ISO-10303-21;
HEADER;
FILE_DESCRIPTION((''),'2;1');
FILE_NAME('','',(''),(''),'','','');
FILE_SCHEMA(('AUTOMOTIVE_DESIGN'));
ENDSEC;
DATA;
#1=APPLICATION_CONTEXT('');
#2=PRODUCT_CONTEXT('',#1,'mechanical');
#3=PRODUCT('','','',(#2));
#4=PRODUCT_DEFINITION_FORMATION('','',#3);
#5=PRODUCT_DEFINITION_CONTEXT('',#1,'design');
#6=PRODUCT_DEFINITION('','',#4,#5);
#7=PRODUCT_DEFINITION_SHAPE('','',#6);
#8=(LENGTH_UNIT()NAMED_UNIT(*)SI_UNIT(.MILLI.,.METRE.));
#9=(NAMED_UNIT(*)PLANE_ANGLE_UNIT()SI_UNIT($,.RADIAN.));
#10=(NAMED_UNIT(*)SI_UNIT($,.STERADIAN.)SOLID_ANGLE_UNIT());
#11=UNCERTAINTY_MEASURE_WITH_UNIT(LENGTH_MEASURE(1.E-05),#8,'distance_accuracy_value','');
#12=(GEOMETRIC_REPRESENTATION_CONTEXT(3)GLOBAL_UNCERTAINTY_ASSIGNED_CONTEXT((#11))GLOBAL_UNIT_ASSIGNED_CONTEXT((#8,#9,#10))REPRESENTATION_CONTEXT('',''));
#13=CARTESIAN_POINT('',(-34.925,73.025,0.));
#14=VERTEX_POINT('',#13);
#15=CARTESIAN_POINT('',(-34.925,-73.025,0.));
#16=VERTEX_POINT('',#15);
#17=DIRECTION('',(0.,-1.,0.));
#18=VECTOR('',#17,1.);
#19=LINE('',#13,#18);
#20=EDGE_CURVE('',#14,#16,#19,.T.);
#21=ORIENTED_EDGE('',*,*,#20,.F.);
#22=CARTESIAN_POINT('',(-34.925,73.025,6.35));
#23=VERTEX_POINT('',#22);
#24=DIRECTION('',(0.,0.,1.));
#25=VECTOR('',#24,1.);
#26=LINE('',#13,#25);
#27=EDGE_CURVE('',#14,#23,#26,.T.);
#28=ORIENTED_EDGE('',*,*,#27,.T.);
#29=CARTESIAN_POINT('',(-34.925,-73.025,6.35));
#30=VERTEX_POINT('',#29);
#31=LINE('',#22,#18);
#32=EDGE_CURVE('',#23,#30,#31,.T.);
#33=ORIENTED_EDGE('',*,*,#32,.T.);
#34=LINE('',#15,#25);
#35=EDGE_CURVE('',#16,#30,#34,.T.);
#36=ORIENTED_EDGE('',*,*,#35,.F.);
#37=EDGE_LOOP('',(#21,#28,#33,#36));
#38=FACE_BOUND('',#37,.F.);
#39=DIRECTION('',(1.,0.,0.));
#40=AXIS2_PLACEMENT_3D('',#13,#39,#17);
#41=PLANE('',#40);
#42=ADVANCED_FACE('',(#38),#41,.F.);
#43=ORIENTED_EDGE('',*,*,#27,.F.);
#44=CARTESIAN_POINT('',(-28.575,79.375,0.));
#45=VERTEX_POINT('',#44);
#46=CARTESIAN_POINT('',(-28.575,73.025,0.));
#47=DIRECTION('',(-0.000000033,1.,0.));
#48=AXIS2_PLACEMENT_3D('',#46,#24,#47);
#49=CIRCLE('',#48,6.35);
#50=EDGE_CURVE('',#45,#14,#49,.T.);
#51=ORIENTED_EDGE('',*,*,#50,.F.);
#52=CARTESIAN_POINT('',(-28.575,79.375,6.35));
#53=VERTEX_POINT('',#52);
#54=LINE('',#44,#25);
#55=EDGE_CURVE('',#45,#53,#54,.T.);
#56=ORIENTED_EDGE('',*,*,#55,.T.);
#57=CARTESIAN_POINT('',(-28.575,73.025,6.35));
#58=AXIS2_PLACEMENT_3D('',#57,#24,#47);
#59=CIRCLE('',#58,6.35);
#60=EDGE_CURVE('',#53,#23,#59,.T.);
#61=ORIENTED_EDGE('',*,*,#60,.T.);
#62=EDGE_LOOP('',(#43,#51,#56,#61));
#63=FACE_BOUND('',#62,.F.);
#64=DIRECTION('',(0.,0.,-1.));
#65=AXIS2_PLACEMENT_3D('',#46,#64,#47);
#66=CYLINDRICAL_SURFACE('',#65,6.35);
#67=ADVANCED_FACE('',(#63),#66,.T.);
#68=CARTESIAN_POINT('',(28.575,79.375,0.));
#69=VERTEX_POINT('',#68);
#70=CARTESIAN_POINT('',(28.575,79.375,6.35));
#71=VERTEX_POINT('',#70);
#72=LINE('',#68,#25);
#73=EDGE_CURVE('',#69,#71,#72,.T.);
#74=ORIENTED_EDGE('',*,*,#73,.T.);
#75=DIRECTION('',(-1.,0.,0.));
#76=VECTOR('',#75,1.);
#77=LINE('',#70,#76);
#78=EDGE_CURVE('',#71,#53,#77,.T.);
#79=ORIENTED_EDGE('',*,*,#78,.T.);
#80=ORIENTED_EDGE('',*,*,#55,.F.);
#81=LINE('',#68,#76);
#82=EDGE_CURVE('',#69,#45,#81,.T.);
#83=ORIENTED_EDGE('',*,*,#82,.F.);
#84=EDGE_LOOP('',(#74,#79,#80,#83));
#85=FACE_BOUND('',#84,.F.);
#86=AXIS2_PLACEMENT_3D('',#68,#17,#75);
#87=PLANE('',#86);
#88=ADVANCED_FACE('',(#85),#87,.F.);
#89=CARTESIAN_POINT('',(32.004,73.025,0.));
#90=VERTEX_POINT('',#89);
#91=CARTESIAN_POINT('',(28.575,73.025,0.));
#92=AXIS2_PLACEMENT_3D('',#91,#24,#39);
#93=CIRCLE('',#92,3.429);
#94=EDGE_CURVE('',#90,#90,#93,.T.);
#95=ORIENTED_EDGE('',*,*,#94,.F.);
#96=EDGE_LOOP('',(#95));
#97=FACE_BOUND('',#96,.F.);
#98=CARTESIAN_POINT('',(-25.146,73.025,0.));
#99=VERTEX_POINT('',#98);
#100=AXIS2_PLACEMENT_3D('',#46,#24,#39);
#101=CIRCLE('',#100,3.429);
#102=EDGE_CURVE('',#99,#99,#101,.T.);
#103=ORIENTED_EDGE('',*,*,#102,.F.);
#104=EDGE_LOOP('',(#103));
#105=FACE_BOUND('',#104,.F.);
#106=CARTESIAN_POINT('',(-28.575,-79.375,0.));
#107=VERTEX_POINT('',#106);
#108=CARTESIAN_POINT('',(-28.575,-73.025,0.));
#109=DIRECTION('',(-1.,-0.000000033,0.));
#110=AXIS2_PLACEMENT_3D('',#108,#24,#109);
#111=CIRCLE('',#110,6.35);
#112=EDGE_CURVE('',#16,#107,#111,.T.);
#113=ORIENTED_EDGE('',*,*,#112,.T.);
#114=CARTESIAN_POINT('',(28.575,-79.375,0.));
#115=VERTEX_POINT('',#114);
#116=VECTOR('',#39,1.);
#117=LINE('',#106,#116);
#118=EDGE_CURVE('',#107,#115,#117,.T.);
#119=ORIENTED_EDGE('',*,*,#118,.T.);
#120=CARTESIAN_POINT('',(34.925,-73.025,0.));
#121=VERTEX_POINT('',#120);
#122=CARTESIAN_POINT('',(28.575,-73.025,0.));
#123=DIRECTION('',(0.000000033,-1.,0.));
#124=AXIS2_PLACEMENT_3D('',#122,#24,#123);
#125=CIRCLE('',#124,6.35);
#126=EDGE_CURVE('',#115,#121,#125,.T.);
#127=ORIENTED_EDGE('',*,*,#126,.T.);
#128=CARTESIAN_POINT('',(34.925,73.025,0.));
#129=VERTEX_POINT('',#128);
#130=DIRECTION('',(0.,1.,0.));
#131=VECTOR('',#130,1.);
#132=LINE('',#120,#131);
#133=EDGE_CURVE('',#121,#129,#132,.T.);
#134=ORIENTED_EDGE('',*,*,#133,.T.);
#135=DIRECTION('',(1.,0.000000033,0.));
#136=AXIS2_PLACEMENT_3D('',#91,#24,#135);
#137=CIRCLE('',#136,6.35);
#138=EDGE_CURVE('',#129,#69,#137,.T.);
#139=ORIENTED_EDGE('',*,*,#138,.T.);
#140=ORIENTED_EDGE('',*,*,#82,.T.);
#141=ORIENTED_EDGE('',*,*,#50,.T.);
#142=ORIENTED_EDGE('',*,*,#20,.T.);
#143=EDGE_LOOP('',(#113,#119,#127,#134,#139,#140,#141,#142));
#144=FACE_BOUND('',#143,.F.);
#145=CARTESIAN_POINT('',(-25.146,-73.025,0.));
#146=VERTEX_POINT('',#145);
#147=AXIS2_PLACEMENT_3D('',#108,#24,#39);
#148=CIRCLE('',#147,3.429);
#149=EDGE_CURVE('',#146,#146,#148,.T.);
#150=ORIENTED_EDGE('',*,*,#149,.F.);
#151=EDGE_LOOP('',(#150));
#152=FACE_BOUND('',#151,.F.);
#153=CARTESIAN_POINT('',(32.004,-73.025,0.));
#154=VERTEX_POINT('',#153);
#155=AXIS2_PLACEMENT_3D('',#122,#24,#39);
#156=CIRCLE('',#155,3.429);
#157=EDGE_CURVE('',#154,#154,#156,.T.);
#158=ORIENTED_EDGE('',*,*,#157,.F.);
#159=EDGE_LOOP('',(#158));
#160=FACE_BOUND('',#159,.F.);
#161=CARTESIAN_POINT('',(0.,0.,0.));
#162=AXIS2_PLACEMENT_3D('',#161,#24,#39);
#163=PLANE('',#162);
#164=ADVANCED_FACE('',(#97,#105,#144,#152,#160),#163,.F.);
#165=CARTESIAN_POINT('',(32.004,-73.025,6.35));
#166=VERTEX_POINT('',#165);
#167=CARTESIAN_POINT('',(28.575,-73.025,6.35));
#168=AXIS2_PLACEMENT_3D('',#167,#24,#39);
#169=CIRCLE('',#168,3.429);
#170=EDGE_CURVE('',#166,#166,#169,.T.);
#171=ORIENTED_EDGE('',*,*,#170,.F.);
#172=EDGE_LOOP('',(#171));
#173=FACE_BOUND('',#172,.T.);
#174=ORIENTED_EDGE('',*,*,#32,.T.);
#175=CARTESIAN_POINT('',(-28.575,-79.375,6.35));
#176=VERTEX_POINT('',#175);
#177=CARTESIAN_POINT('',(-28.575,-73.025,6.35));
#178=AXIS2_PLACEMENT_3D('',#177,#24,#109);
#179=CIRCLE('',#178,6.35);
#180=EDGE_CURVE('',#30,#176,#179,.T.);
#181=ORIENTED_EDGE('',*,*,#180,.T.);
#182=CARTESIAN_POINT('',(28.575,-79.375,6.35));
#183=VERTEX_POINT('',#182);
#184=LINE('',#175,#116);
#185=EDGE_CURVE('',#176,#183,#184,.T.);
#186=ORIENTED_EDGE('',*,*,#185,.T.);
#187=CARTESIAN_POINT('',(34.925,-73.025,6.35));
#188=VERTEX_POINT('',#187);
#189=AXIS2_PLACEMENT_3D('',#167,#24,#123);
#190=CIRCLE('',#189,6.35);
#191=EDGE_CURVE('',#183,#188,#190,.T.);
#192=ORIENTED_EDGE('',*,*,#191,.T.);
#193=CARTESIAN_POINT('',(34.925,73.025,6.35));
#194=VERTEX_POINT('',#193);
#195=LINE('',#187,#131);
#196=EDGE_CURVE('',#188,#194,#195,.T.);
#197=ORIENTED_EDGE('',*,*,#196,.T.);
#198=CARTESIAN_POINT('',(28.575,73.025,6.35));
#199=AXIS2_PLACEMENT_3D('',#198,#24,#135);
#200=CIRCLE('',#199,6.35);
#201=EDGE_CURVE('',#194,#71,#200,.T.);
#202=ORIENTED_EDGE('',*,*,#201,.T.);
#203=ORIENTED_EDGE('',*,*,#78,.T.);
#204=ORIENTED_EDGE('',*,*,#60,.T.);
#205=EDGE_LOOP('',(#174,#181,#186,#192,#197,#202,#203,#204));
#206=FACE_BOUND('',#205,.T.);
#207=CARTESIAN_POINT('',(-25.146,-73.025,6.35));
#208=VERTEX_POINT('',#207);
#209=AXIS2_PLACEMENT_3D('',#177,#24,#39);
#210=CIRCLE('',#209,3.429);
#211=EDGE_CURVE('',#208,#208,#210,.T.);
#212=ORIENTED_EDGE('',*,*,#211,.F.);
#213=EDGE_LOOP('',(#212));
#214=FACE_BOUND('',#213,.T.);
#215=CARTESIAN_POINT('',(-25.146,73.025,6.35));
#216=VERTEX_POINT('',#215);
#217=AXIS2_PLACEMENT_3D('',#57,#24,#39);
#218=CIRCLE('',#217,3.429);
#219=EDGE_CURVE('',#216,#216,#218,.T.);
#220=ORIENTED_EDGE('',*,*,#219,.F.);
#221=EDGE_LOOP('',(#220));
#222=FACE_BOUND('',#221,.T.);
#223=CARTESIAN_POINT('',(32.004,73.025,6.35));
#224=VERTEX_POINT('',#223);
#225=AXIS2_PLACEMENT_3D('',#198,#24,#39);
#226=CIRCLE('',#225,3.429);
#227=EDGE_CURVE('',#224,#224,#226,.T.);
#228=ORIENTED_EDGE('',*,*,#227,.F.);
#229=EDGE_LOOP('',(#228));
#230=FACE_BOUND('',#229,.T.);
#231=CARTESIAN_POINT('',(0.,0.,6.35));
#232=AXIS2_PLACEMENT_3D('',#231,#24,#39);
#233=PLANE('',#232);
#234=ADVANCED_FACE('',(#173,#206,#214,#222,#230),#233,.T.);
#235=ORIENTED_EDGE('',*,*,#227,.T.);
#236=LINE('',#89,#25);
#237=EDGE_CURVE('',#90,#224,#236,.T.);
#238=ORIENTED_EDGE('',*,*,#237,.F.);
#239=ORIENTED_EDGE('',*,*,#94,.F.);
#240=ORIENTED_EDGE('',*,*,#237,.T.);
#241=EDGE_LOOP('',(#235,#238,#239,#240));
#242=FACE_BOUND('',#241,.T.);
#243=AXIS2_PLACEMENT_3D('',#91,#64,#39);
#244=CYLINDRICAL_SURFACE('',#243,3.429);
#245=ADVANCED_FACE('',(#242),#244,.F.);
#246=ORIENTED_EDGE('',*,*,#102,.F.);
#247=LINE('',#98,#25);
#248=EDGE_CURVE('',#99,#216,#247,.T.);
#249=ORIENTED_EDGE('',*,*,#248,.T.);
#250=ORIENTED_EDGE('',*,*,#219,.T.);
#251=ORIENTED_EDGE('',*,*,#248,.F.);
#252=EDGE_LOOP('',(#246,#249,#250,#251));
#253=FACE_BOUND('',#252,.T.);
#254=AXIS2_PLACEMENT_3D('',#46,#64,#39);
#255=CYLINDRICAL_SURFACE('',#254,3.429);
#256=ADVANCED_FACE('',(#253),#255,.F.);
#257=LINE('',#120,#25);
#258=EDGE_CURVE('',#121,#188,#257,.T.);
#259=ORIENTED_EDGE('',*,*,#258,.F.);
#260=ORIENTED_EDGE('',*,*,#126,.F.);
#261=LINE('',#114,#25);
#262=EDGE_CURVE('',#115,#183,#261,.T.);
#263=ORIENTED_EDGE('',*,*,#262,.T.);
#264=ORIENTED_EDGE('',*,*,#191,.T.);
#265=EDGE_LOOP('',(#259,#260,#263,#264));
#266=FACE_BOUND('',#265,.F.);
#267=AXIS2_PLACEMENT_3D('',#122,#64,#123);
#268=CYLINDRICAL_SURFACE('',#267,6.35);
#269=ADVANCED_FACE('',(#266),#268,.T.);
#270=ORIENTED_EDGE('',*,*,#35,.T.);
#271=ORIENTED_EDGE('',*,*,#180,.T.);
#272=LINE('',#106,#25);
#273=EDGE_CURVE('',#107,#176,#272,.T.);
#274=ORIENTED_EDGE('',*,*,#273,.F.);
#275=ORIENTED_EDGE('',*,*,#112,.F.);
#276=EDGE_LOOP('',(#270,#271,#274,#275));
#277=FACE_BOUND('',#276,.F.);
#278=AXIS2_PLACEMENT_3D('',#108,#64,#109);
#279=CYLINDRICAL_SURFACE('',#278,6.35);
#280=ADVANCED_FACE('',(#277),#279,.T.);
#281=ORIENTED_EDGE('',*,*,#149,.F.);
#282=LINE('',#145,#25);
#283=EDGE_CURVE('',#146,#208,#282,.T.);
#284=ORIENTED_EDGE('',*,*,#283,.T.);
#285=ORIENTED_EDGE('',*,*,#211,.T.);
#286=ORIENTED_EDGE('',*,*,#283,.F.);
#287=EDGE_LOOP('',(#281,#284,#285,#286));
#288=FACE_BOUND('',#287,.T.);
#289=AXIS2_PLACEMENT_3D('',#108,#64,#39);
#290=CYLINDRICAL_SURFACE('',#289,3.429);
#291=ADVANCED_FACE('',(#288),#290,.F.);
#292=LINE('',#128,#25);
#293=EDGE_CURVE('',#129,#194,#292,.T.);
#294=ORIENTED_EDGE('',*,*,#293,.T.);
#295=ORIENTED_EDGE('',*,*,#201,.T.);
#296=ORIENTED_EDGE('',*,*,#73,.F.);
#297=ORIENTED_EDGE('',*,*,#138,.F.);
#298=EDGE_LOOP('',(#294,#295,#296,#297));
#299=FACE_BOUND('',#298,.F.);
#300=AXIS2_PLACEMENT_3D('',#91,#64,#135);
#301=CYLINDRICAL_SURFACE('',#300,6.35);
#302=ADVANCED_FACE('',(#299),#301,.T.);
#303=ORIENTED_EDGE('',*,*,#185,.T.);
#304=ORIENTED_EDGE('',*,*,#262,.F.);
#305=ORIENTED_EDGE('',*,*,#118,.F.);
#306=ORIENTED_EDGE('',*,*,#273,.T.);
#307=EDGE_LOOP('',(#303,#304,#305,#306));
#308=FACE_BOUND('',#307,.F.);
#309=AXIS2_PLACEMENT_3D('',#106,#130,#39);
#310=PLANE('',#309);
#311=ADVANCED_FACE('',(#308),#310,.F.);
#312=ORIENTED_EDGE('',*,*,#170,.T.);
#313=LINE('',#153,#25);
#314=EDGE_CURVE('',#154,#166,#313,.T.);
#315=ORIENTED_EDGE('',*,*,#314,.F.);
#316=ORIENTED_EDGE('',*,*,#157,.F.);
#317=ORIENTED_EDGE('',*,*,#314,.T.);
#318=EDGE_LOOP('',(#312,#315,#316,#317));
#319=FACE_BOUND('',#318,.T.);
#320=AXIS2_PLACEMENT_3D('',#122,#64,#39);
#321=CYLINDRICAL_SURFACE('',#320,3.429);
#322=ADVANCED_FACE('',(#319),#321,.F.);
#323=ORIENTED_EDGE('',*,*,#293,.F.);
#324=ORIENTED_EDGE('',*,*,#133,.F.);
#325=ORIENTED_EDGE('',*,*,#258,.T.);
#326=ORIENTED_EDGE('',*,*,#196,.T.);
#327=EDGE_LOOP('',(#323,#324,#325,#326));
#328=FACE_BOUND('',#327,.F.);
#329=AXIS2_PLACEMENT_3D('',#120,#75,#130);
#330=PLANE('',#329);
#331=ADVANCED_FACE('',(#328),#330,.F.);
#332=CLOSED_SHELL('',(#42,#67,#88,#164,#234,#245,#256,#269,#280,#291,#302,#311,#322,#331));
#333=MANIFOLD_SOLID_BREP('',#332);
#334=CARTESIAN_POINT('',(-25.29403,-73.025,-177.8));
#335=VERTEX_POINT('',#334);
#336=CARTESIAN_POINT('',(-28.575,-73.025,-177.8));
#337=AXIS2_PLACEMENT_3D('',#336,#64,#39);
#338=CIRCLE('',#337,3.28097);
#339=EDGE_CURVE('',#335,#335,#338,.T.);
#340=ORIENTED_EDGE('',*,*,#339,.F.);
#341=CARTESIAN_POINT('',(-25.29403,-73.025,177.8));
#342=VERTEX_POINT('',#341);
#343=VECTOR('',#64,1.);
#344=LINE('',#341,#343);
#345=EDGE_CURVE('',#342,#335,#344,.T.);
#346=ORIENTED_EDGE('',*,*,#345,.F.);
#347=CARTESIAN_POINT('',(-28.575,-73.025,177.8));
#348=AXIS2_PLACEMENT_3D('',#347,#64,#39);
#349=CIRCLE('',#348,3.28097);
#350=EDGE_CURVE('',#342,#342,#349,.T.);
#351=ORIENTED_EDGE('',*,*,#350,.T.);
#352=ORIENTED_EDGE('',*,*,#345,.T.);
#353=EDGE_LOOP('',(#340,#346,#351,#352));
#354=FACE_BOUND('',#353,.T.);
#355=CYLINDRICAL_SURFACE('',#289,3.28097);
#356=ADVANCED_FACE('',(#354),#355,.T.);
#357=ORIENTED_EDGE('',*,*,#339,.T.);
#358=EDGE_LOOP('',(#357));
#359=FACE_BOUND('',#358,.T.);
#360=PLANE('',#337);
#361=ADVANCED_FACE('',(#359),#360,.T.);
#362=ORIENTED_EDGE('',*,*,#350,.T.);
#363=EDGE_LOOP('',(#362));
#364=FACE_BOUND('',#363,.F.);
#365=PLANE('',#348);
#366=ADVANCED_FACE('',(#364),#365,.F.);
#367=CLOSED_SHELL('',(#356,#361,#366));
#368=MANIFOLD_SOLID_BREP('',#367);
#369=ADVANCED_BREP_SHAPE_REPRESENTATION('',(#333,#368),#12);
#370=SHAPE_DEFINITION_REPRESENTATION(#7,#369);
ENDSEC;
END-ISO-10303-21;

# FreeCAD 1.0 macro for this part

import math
import FreeCAD as App
import Part
import Sketcher

V = App.Vector
Q = App.Units.Quantity

doc = App.newDocument("Part")
body = doc.addObject("PartDesign::Body", "Body")

# Sketch on XY plane
sketch1 = doc.addObject("Sketcher::SketchObject", "Sketch")
body.addObject(sketch1)
sketch1.AttachmentSupport = (doc.XY_Plane, [""])
sketch1.MapMode = "FlatFace"
sketch1.addGeometry(Part.LineSegment(V(28.6, 79.4, 0), V(-28.6, 79.4, 0)), False)
sketch1.addGeometry(Part.ArcOfCircle(Part.Circle(V(-28.6, 73, 0), V(0, 0, 1), 6.4), math.radians(90), math.radians(180)), False)
sketch1.addGeometry(Part.LineSegment(V(-34.9, 73, 0), V(-34.9, -73, 0)), False)
sketch1.addGeometry(Part.ArcOfCircle(Part.Circle(V(-28.6, -73, 0), V(0, 0, 1), 6.4), math.radians(-180), math.radians(-90)), False)
sketch1.addGeometry(Part.LineSegment(V(-28.6, -79.4, 0), V(28.6, -79.4, 0)), False)
sketch1.addGeometry(Part.ArcOfCircle(Part.Circle(V(28.6, -73, 0), V(0, 0, 1), 6.4), math.radians(-90), math.radians(0)), False)
sketch1.addGeometry(Part.LineSegment(V(34.9, -73, 0), V(34.9, 73, 0)), False)
sketch1.addGeometry(Part.ArcOfCircle(Part.Circle(V(28.6, 73, 0), V(0, 0, 1), 6.4), math.radians(0), math.radians(90)), False)
sketch1.addGeometry(Part.Circle(V(-28.6, -73, 0), V(0, 0, 1), 3.4), False)
sketch1.addGeometry(Part.Circle(V(28.6, -73, 0), V(0, 0, 1), 3.4), False)
sketch1.addGeometry(Part.Circle(V(-28.6, 73, 0), V(0, 0, 1), 3.4), False)
sketch1.addGeometry(Part.Circle(V(28.6, 73, 0), V(0, 0, 1), 3.4), False)
sketch1.addConstraint(Sketcher.Constraint("Tangent", 0, 2, 1, 1))
sketch1.addConstraint(Sketcher.Constraint("Tangent", 1, 2, 2, 1))
sketch1.addConstraint(Sketcher.Constraint("Tangent", 2, 2, 3, 1))
sketch1.addConstraint(Sketcher.Constraint("Tangent", 3, 2, 4, 1))
sketch1.addConstraint(Sketcher.Constraint("Tangent", 4, 2, 5, 1))
sketch1.addConstraint(Sketcher.Constraint("Tangent", 5, 2, 6, 1))
sketch1.addConstraint(Sketcher.Constraint("Tangent", 6, 2, 7, 1))
sketch1.addConstraint(Sketcher.Constraint("Tangent", 7, 2, 0, 1))
sketch1.addConstraint(Sketcher.Constraint("Horizontal", 0))
sketch1.addConstraint(Sketcher.Constraint("Vertical", 2))
sketch1.addConstraint(Sketcher.Constraint("Horizontal", 4))
sketch1.addConstraint(Sketcher.Constraint("Vertical", 6))
sketch1.addConstraint(Sketcher.Constraint("Coincident", 8, 3, 3, 3))
sketch1.addConstraint(Sketcher.Constraint("Coincident", 9, 3, 5, 3))
sketch1.addConstraint(Sketcher.Constraint("Coincident", 10, 3, 1, 3))
sketch1.addConstraint(Sketcher.Constraint("Coincident", 11, 3, 7, 3))
sketch1.addConstraint(Sketcher.Constraint("Equal", 1, 3))
sketch1.addConstraint(Sketcher.Constraint("Equal", 3, 5))
sketch1.addConstraint(Sketcher.Constraint("Equal", 5, 7))
sketch1.addConstraint(Sketcher.Constraint("Equal", 8, 9))
sketch1.addConstraint(Sketcher.Constraint("Equal", 9, 10))
sketch1.addConstraint(Sketcher.Constraint("Equal", 10, 11))
sketch1.addConstraint(Sketcher.Constraint("Symmetric", 1, 3, 5, 3, -1, 1))
sketch1.addConstraint(Sketcher.Constraint("Diameter", 8, Q("0.27 in")))
sketch1.addConstraint(Sketcher.Constraint("Radius", 1, Q("0.25 in")))
sketch1.addConstraint(Sketcher.Constraint("DistanceY", 3, 3, 0, 2, Q("6 in")))
sketch1.addConstraint(Sketcher.Constraint("DistanceX", 0, 2, 0, 1, Q("2.25 in")))
pad1 = doc.addObject("PartDesign::Pad", "Pad")
body.addObject(pad1)
pad1.Profile = sketch1
pad1.Length = Q("0.25 in")
body2 = doc.addObject("PartDesign::Body", "Body001")

# Sketch on XY plane
sketch2 = doc.addObject("Sketcher::SketchObject", "Sketch001")
body2.addObject(sketch2)
sketch2.AttachmentSupport = (doc.getObject("XY_Plane001"), [""])
sketch2.MapMode = "FlatFace"
sketch2.addGeometry(Part.Circle(V(-28.6, -73, 0), V(0, 0, 1), 3.3), False)
sketch2.addConstraint(Sketcher.Constraint("Diameter", 0, Q("6.56194 mm")))
sketch2.addConstraint(Sketcher.Constraint("DistanceX", 0, 3, -1, 1, Q("1.125 in")))
sketch2.addConstraint(Sketcher.Constraint("DistanceY", 0, 3, -1, 1, Q("2.875 in")))
pad2 = doc.addObject("PartDesign::Pad", "Pad001")
body2.addObject(pad2)
pad2.Profile = sketch2
pad2.Length = Q("14 in")
pad2.Midplane = True

doc.recompute()
